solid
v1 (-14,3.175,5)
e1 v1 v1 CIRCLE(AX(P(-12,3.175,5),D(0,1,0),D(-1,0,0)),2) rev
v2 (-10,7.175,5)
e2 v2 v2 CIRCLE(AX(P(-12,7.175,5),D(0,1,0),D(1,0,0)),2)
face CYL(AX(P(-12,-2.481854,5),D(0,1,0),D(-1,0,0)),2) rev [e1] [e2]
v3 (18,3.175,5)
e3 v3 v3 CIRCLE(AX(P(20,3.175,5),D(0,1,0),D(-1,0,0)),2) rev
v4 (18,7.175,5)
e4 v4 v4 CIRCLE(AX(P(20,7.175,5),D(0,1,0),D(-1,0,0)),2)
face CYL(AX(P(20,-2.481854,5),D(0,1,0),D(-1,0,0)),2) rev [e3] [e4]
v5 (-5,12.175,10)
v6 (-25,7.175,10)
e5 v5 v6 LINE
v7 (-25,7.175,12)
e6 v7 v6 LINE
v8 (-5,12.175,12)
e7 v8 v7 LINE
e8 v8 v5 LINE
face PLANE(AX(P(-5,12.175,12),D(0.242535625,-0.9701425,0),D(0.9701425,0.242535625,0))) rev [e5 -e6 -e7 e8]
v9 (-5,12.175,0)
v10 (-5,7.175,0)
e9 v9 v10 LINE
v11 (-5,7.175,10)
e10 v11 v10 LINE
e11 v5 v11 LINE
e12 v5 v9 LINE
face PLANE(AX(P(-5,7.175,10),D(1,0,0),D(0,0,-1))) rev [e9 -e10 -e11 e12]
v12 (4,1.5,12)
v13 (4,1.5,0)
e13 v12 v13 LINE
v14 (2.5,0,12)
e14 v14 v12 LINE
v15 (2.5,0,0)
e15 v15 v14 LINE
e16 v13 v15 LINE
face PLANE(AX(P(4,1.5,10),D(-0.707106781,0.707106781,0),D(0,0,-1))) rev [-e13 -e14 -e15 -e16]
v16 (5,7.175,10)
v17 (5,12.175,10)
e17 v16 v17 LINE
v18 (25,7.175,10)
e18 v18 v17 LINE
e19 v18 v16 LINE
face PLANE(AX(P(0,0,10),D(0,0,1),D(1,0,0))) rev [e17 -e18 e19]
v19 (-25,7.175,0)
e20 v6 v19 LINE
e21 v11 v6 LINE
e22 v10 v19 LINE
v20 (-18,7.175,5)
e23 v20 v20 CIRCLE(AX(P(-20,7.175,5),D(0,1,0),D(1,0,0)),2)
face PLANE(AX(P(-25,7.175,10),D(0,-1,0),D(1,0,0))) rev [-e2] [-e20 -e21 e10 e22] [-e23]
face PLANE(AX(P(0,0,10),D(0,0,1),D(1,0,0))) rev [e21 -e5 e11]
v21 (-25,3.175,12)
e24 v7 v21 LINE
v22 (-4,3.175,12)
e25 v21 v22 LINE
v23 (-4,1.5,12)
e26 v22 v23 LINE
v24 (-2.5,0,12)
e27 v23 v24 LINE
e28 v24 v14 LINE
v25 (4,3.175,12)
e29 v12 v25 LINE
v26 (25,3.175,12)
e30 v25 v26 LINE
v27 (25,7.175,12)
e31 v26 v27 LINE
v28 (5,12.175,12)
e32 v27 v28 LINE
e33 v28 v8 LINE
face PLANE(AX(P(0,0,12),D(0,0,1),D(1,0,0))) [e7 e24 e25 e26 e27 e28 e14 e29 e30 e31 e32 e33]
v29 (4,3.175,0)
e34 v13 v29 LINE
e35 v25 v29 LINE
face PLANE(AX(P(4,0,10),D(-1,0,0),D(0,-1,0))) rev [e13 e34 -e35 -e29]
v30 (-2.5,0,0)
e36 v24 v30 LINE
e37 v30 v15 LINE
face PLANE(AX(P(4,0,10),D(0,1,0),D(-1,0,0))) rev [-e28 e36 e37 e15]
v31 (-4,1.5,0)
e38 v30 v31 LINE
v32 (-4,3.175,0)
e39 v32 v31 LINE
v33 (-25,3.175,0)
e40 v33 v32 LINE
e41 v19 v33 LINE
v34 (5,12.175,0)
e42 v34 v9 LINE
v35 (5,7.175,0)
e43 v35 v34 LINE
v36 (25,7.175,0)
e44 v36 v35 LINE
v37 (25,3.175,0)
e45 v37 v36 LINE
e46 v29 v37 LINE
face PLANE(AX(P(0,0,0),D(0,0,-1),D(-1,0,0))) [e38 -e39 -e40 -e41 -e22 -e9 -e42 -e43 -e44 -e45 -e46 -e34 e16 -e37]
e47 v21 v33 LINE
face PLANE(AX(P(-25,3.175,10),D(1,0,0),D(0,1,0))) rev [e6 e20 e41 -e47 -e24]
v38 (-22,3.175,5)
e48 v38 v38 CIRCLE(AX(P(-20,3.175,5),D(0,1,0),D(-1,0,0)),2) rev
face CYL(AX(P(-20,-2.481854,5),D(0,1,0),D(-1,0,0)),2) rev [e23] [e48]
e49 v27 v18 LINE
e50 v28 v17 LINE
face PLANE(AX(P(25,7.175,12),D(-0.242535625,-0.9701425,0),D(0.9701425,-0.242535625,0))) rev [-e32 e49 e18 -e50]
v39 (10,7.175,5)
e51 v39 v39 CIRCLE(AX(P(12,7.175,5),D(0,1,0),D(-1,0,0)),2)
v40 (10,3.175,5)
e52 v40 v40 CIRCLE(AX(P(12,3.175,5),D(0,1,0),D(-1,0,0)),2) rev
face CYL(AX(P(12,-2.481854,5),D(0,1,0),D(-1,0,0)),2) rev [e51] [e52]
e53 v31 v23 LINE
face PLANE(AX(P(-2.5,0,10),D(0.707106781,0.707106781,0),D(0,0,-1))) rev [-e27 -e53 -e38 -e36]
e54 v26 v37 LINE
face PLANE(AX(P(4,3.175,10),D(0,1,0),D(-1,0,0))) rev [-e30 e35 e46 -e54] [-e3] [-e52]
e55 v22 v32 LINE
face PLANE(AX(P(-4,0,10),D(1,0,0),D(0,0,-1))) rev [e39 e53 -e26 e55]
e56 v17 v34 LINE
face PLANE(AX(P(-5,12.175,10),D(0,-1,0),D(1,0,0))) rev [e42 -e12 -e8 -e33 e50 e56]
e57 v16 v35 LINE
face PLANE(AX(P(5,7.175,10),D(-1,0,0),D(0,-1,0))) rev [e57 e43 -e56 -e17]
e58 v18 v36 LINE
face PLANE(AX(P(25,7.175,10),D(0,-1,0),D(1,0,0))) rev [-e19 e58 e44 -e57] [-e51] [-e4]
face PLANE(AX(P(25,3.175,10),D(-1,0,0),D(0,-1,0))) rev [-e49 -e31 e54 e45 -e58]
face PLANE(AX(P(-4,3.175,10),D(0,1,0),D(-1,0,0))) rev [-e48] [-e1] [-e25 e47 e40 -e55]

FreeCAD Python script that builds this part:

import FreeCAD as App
import Part
import Sketcher
from FreeCAD import Vector


def edges_at(feature, points):
    """Names of the edges that pass closest to the given points."""
    edges = feature.Shape.Edges
    near = lambda p: min(range(len(edges)), key=lambda i: edges[i].distToShape(Part.Vertex(*p))[0])
    return sorted({f"Edge{near(p) + 1}" for p in points})


def add_polygon(sketch, points):
    """Adds a closed chain of lines whose ends are joined by coincident constraints."""
    first, n = sketch.GeometryCount, len(points)
    for a, b in zip(points, points[1:] + points[:1]):
        sketch.addGeometry(Part.LineSegment(App.Vector(*a, 0), App.Vector(*b, 0)), False)
    for i in range(n):
        sketch.addConstraint(Sketcher.Constraint("Coincident", first + i, 2, first + (i + 1) % n, 1))

doc = App.newDocument("Part")
body = doc.addObject("PartDesign::Body", "Body")

# Sketch on XY plane
sketch1 = body.newObject("Sketcher::SketchObject", "Sketch")
sketch1.AttachmentSupport = (doc.getObject("XY_Plane"), [""])
sketch1.MapMode = "FlatFace"
add_polygon(sketch1, [(-25, 7.175), (-25, 3.175), (-4, 3.175), (-4, 0), (4, 0), (4, 3.175), (25, 3.175), (25, 7.175), (5, 7.175), (5, 12.175), (-5, 12.175), (-5, 7.175)])  # lines 0-11
sketch1.addConstraint([
    Sketcher.Constraint("Vertical", 0),
    Sketcher.Constraint("Horizontal", 1),
    Sketcher.Constraint("Vertical", 2),
    Sketcher.Constraint("Horizontal", 3),
    Sketcher.Constraint("Vertical", 4),
    Sketcher.Constraint("Horizontal", 5),
    Sketcher.Constraint("Vertical", 6),
    Sketcher.Constraint("Horizontal", 7),
    Sketcher.Constraint("Vertical", 8),
    Sketcher.Constraint("Horizontal", 9),
    Sketcher.Constraint("Vertical", 10),
    Sketcher.Constraint("Horizontal", 11),
    Sketcher.Constraint("Symmetric", 2, 2, 3, 2, -1, 1),
    Sketcher.Constraint("Symmetric", 0, 2, 5, 2, -2),
    Sketcher.Constraint("Symmetric", 7, 2, 10, 2, -2),
    Sketcher.Constraint("DistanceX", 1, 1, 1, 2, 21.0),
    Sketcher.Constraint("DistanceX", 3, 1, 3, 2, 8.0),
    Sketcher.Constraint("DistanceX", 7, 2, 7, 1, 20.0),
    Sketcher.Constraint("DistanceY", 0, 2, 0, 1, 4.0),
    Sketcher.Constraint("DistanceY", 8, 1, 8, 2, 5.0),
    Sketcher.Constraint("DistanceY", 2, 2, 2, 1, 3.175),
])
pad1 = body.newObject("PartDesign::Pad", "Pad")
pad1.Profile = sketch1
pad1.Length = 10

# Sketch on XY plane
sketch2 = body.newObject("Sketcher::SketchObject", "Sketch001")
sketch2.AttachmentSupport = (doc.getObject("XY_Plane"), [""])
sketch2.MapMode = "FlatFace"
sketch2.AttachmentOffset = App.Placement(Vector(0, 0, 10), App.Rotation())
add_polygon(sketch2, [(-5, 12.175), (-25, 7.175), (-25, 3.175), (-4, 3.175), (-4, 0), (4, 0), (4, 3.175), (25, 3.175), (25, 7.175), (5, 12.175)])  # lines 0-9
sketch2.addConstraint([
    Sketcher.Constraint("Vertical", 1),
    Sketcher.Constraint("Horizontal", 2),
    Sketcher.Constraint("Vertical", 3),
    Sketcher.Constraint("Horizontal", 4),
    Sketcher.Constraint("Vertical", 5),
    Sketcher.Constraint("Horizontal", 6),
    Sketcher.Constraint("Vertical", 7),
    Sketcher.Constraint("Horizontal", 9),
    Sketcher.Constraint("Symmetric", 3, 2, 4, 2, -1, 1),
    Sketcher.Constraint("Symmetric", 1, 2, 6, 2, -2),
    Sketcher.Constraint("Horizontal", 0, 2, 7, 2),
    Sketcher.Constraint("Equal", 0, 8),
    Sketcher.Constraint("DistanceX", 2, 1, 2, 2, 21.0),
    Sketcher.Constraint("DistanceX", 4, 1, 4, 2, 8.0),
    Sketcher.Constraint("DistanceX", 9, 2, 9, 1, 10.0),
    Sketcher.Constraint("DistanceY", 1, 2, 1, 1, 4.0),
    Sketcher.Constraint("DistanceY", 5, 2, 8, 2, 9.0),
    Sketcher.Constraint("DistanceY", 3, 2, 3, 1, 3.175),
])
pad2 = body.newObject("PartDesign::Pad", "Pad001")
pad2.Profile = sketch2
pad2.Length = 2

# Sketch on XZ plane
sketch3 = body.newObject("Sketcher::SketchObject", "Sketch002")
sketch3.AttachmentSupport = (doc.getObject("XZ_Plane"), [""])
sketch3.MapMode = "FlatFace"
sketch3.AttachmentOffset = App.Placement(Vector(0, 0, -7.175), App.Rotation())
sketch3.addGeometry([
    Part.Circle(Vector(12, 5, 0), Vector(0, 0, 1), 2),
    Part.Circle(Vector(20, 5, 0), Vector(0, 0, 1), 2),
    Part.Circle(Vector(-12, 5, 0), Vector(0, 0, 1), 2),
    Part.Circle(Vector(-20, 5, 0), Vector(0, 0, 1), 2),
], False)
sketch3.addConstraint([
    Sketcher.Constraint("Equal", 0, 1),
    Sketcher.Constraint("Equal", 1, 2),
    Sketcher.Constraint("Equal", 2, 3),
    Sketcher.Constraint("Symmetric", 0, 3, 2, 3, -2),
    Sketcher.Constraint("Symmetric", 1, 3, 3, 3, -2),
    Sketcher.Constraint("Horizontal", 0, 3, 1, 3),
    Sketcher.Constraint("Diameter", 0, 4.0),
    Sketcher.Constraint("DistanceX", -1, 1, 0, 3, 12.0),
    Sketcher.Constraint("DistanceY", -1, 1, 0, 3, 5.0),
    Sketcher.Constraint("DistanceX", -1, 1, 1, 3, 20.0),
])
pocket1 = body.newObject("PartDesign::Pocket", "Pocket")
pocket1.Profile = sketch3
pocket1.Length = 4
pocket1.Reversed = True
doc.recompute()

chamfer = body.newObject("PartDesign::Chamfer", "Chamfer")
chamfer.Base = (pocket1, edges_at(pocket1, [(4, 0, 6), (-4, 0, 6)]))
chamfer.Size = 1.5

doc.recompute()
